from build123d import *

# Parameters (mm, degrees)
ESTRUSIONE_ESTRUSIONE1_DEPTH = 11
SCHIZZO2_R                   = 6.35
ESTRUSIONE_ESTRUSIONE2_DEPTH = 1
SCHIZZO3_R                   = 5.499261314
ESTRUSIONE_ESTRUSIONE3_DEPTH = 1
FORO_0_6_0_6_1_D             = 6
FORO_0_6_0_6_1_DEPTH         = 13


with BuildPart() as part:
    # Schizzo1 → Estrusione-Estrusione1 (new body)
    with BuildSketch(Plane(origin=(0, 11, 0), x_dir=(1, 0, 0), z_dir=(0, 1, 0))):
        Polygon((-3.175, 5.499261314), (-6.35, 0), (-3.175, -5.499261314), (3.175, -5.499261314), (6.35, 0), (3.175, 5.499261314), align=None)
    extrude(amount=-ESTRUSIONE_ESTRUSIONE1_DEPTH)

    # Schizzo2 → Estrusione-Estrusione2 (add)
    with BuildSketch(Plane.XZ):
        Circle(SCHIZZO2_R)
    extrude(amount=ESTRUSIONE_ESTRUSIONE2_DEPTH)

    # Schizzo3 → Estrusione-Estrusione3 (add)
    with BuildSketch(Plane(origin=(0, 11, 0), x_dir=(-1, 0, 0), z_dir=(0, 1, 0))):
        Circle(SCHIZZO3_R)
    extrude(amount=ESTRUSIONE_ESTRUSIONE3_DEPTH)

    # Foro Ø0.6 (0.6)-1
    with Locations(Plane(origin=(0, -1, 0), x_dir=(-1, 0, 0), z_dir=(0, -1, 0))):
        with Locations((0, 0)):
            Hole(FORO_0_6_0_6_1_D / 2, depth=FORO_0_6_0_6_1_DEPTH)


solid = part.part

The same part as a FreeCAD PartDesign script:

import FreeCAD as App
import Part
import Sketcher

V = App.Vector
Q = App.Units.Quantity


def add_polygon(sketch, points):
    """Adds a closed chain of lines whose ends are joined by coincident constraints."""
    first, n = sketch.GeometryCount, len(points)
    for a, b in zip(points, points[1:] + points[:1]):
        sketch.addGeometry(Part.LineSegment(App.Vector(*a, 0), App.Vector(*b, 0)), False)
    for i in range(n):
        sketch.addConstraint(Sketcher.Constraint("Coincident", first + i, 2, first + (i + 1) % n, 1))

doc = App.newDocument("Part")
params = doc.addObject("Spreadsheet::Sheet", "Params")
for row, (alias, value) in enumerate([
    ("sketch1_width", "6.35 mm"),
    ("pad1_length", "11 mm"),
    ("sketch2_diameter", "12.7 mm"),
    ("pad2_length", "1 mm"),
    ("pad3_length", "1 mm"),
    ("sketch4_diameter", "6 mm"),
    ("hole_diameter", "6 mm"),
    ("hole_depth", "13 mm"),
], start=1):
    params.set(f"A{row}", alias)
    params.set(f"B{row}", "=" + value)
    params.setAlias(f"B{row}", alias)

body = doc.addObject("PartDesign::Body", "Body")

# Sketch on XZ plane
sketch1 = body.newObject("Sketcher::SketchObject", "Sketch")
sketch1.AttachmentSupport = (doc.getObject("XZ_Plane"), [""])
sketch1.MapMode = "FlatFace"
sketch1.AttachmentOffset = App.Placement(V(0, 0, -11), App.Rotation())
add_polygon(sketch1, [(-3.175, -5.499261), (-6.35, 0), (-3.175, 5.499261), (3.175, 5.499261), (6.35, 0), (3.175, -5.499261)])  # lines 0-5
sketch1.addConstraint([
    Sketcher.Constraint("Horizontal", 2),
    Sketcher.Constraint("Horizontal", 5),
    Sketcher.Constraint("Symmetric", 0, 2, 3, 2, -1, 1),
    Sketcher.Constraint("Symmetric", 1, 2, 4, 2, -1, 1),
    Sketcher.Constraint("PointOnObject", 0, 2, -1),
    Sketcher.Constraint("Parallel", 0, 3),
    Sketcher.Constraint("Vertical", 2, 2, 4, 2),
    Sketcher.Constraint("Angle", 0, Q("120 deg")),
    Sketcher.Constraint("DistanceX", 2, 1, 2, 2, 6.35),
    Sketcher.Constraint("DistanceX", 0, 2, 3, 2, 12.7),
])
sketch1.setExpression("Constraints[14]", "Params.sketch1_width")
pad1 = body.newObject("PartDesign::Pad", "Pad")
pad1.Profile = sketch1
pad1.setExpression("Length", "Params.pad1_length")

# Sketch on XZ plane
sketch2 = body.newObject("Sketcher::SketchObject", "Sketch001")
sketch2.AttachmentSupport = (doc.getObject("XZ_Plane"), [""])
sketch2.MapMode = "FlatFace"
sketch2.addGeometry(Part.Circle(V(0, 0, 0), V(0, 0, 1), 6.35), False)
sketch2.addConstraint([
    Sketcher.Constraint("Coincident", 0, 3, -1, 1),
    Sketcher.Constraint("Diameter", 0, 12.7),
])
sketch2.setExpression("Constraints[1]", "Params.sketch2_diameter")
pad2 = body.newObject("PartDesign::Pad", "Pad001")
pad2.Profile = sketch2
pad2.setExpression("Length", "Params.pad2_length")

# Sketch on XZ plane
sketch3 = body.newObject("Sketcher::SketchObject", "Sketch002")
sketch3.AttachmentSupport = (doc.getObject("XZ_Plane"), [""])
sketch3.MapMode = "FlatFace"
sketch3.AttachmentOffset = App.Placement(V(0, 0, -11), App.Rotation())
sketch3.addGeometry(Part.Circle(V(0, 0, 0), V(0, 0, 1), 5.499261), False)
sketch3.addConstraint([
    Sketcher.Constraint("Coincident", 0, 3, -1, 1),
    Sketcher.Constraint("Diameter", 0, 10.998523),
])
pad3 = body.newObject("PartDesign::Pad", "Pad002")
pad3.Profile = sketch3
pad3.setExpression("Length", "Params.pad3_length")
pad3.Reversed = True

# Sketch on XZ plane
sketch4 = body.newObject("Sketcher::SketchObject", "Sketch003")
sketch4.AttachmentSupport = (doc.getObject("XZ_Plane"), [""])
sketch4.MapMode = "FlatFace"
sketch4.AttachmentOffset = App.Placement(V(0, 0, 1), App.Rotation())
sketch4.addGeometry(Part.Circle(V(0, 0, 0), V(0, 0, 1), 3), False)
sketch4.addConstraint([
    Sketcher.Constraint("Coincident", 0, 3, -1, 1),
    Sketcher.Constraint("Diameter", 0, 6.0),
])
sketch4.setExpression("Constraints[1]", "Params.sketch4_diameter")
doc.recompute()
hole = body.newObject("PartDesign::Hole", "Hole")
hole.Profile = sketch4
hole.ThreadType = "None"
hole.setExpression("Diameter", "Params.hole_diameter")
hole.DepthType = "Dimension"
hole.setExpression("Depth", "Params.hole_depth")
hole.DrillPoint = "Flat"

doc.recompute()
